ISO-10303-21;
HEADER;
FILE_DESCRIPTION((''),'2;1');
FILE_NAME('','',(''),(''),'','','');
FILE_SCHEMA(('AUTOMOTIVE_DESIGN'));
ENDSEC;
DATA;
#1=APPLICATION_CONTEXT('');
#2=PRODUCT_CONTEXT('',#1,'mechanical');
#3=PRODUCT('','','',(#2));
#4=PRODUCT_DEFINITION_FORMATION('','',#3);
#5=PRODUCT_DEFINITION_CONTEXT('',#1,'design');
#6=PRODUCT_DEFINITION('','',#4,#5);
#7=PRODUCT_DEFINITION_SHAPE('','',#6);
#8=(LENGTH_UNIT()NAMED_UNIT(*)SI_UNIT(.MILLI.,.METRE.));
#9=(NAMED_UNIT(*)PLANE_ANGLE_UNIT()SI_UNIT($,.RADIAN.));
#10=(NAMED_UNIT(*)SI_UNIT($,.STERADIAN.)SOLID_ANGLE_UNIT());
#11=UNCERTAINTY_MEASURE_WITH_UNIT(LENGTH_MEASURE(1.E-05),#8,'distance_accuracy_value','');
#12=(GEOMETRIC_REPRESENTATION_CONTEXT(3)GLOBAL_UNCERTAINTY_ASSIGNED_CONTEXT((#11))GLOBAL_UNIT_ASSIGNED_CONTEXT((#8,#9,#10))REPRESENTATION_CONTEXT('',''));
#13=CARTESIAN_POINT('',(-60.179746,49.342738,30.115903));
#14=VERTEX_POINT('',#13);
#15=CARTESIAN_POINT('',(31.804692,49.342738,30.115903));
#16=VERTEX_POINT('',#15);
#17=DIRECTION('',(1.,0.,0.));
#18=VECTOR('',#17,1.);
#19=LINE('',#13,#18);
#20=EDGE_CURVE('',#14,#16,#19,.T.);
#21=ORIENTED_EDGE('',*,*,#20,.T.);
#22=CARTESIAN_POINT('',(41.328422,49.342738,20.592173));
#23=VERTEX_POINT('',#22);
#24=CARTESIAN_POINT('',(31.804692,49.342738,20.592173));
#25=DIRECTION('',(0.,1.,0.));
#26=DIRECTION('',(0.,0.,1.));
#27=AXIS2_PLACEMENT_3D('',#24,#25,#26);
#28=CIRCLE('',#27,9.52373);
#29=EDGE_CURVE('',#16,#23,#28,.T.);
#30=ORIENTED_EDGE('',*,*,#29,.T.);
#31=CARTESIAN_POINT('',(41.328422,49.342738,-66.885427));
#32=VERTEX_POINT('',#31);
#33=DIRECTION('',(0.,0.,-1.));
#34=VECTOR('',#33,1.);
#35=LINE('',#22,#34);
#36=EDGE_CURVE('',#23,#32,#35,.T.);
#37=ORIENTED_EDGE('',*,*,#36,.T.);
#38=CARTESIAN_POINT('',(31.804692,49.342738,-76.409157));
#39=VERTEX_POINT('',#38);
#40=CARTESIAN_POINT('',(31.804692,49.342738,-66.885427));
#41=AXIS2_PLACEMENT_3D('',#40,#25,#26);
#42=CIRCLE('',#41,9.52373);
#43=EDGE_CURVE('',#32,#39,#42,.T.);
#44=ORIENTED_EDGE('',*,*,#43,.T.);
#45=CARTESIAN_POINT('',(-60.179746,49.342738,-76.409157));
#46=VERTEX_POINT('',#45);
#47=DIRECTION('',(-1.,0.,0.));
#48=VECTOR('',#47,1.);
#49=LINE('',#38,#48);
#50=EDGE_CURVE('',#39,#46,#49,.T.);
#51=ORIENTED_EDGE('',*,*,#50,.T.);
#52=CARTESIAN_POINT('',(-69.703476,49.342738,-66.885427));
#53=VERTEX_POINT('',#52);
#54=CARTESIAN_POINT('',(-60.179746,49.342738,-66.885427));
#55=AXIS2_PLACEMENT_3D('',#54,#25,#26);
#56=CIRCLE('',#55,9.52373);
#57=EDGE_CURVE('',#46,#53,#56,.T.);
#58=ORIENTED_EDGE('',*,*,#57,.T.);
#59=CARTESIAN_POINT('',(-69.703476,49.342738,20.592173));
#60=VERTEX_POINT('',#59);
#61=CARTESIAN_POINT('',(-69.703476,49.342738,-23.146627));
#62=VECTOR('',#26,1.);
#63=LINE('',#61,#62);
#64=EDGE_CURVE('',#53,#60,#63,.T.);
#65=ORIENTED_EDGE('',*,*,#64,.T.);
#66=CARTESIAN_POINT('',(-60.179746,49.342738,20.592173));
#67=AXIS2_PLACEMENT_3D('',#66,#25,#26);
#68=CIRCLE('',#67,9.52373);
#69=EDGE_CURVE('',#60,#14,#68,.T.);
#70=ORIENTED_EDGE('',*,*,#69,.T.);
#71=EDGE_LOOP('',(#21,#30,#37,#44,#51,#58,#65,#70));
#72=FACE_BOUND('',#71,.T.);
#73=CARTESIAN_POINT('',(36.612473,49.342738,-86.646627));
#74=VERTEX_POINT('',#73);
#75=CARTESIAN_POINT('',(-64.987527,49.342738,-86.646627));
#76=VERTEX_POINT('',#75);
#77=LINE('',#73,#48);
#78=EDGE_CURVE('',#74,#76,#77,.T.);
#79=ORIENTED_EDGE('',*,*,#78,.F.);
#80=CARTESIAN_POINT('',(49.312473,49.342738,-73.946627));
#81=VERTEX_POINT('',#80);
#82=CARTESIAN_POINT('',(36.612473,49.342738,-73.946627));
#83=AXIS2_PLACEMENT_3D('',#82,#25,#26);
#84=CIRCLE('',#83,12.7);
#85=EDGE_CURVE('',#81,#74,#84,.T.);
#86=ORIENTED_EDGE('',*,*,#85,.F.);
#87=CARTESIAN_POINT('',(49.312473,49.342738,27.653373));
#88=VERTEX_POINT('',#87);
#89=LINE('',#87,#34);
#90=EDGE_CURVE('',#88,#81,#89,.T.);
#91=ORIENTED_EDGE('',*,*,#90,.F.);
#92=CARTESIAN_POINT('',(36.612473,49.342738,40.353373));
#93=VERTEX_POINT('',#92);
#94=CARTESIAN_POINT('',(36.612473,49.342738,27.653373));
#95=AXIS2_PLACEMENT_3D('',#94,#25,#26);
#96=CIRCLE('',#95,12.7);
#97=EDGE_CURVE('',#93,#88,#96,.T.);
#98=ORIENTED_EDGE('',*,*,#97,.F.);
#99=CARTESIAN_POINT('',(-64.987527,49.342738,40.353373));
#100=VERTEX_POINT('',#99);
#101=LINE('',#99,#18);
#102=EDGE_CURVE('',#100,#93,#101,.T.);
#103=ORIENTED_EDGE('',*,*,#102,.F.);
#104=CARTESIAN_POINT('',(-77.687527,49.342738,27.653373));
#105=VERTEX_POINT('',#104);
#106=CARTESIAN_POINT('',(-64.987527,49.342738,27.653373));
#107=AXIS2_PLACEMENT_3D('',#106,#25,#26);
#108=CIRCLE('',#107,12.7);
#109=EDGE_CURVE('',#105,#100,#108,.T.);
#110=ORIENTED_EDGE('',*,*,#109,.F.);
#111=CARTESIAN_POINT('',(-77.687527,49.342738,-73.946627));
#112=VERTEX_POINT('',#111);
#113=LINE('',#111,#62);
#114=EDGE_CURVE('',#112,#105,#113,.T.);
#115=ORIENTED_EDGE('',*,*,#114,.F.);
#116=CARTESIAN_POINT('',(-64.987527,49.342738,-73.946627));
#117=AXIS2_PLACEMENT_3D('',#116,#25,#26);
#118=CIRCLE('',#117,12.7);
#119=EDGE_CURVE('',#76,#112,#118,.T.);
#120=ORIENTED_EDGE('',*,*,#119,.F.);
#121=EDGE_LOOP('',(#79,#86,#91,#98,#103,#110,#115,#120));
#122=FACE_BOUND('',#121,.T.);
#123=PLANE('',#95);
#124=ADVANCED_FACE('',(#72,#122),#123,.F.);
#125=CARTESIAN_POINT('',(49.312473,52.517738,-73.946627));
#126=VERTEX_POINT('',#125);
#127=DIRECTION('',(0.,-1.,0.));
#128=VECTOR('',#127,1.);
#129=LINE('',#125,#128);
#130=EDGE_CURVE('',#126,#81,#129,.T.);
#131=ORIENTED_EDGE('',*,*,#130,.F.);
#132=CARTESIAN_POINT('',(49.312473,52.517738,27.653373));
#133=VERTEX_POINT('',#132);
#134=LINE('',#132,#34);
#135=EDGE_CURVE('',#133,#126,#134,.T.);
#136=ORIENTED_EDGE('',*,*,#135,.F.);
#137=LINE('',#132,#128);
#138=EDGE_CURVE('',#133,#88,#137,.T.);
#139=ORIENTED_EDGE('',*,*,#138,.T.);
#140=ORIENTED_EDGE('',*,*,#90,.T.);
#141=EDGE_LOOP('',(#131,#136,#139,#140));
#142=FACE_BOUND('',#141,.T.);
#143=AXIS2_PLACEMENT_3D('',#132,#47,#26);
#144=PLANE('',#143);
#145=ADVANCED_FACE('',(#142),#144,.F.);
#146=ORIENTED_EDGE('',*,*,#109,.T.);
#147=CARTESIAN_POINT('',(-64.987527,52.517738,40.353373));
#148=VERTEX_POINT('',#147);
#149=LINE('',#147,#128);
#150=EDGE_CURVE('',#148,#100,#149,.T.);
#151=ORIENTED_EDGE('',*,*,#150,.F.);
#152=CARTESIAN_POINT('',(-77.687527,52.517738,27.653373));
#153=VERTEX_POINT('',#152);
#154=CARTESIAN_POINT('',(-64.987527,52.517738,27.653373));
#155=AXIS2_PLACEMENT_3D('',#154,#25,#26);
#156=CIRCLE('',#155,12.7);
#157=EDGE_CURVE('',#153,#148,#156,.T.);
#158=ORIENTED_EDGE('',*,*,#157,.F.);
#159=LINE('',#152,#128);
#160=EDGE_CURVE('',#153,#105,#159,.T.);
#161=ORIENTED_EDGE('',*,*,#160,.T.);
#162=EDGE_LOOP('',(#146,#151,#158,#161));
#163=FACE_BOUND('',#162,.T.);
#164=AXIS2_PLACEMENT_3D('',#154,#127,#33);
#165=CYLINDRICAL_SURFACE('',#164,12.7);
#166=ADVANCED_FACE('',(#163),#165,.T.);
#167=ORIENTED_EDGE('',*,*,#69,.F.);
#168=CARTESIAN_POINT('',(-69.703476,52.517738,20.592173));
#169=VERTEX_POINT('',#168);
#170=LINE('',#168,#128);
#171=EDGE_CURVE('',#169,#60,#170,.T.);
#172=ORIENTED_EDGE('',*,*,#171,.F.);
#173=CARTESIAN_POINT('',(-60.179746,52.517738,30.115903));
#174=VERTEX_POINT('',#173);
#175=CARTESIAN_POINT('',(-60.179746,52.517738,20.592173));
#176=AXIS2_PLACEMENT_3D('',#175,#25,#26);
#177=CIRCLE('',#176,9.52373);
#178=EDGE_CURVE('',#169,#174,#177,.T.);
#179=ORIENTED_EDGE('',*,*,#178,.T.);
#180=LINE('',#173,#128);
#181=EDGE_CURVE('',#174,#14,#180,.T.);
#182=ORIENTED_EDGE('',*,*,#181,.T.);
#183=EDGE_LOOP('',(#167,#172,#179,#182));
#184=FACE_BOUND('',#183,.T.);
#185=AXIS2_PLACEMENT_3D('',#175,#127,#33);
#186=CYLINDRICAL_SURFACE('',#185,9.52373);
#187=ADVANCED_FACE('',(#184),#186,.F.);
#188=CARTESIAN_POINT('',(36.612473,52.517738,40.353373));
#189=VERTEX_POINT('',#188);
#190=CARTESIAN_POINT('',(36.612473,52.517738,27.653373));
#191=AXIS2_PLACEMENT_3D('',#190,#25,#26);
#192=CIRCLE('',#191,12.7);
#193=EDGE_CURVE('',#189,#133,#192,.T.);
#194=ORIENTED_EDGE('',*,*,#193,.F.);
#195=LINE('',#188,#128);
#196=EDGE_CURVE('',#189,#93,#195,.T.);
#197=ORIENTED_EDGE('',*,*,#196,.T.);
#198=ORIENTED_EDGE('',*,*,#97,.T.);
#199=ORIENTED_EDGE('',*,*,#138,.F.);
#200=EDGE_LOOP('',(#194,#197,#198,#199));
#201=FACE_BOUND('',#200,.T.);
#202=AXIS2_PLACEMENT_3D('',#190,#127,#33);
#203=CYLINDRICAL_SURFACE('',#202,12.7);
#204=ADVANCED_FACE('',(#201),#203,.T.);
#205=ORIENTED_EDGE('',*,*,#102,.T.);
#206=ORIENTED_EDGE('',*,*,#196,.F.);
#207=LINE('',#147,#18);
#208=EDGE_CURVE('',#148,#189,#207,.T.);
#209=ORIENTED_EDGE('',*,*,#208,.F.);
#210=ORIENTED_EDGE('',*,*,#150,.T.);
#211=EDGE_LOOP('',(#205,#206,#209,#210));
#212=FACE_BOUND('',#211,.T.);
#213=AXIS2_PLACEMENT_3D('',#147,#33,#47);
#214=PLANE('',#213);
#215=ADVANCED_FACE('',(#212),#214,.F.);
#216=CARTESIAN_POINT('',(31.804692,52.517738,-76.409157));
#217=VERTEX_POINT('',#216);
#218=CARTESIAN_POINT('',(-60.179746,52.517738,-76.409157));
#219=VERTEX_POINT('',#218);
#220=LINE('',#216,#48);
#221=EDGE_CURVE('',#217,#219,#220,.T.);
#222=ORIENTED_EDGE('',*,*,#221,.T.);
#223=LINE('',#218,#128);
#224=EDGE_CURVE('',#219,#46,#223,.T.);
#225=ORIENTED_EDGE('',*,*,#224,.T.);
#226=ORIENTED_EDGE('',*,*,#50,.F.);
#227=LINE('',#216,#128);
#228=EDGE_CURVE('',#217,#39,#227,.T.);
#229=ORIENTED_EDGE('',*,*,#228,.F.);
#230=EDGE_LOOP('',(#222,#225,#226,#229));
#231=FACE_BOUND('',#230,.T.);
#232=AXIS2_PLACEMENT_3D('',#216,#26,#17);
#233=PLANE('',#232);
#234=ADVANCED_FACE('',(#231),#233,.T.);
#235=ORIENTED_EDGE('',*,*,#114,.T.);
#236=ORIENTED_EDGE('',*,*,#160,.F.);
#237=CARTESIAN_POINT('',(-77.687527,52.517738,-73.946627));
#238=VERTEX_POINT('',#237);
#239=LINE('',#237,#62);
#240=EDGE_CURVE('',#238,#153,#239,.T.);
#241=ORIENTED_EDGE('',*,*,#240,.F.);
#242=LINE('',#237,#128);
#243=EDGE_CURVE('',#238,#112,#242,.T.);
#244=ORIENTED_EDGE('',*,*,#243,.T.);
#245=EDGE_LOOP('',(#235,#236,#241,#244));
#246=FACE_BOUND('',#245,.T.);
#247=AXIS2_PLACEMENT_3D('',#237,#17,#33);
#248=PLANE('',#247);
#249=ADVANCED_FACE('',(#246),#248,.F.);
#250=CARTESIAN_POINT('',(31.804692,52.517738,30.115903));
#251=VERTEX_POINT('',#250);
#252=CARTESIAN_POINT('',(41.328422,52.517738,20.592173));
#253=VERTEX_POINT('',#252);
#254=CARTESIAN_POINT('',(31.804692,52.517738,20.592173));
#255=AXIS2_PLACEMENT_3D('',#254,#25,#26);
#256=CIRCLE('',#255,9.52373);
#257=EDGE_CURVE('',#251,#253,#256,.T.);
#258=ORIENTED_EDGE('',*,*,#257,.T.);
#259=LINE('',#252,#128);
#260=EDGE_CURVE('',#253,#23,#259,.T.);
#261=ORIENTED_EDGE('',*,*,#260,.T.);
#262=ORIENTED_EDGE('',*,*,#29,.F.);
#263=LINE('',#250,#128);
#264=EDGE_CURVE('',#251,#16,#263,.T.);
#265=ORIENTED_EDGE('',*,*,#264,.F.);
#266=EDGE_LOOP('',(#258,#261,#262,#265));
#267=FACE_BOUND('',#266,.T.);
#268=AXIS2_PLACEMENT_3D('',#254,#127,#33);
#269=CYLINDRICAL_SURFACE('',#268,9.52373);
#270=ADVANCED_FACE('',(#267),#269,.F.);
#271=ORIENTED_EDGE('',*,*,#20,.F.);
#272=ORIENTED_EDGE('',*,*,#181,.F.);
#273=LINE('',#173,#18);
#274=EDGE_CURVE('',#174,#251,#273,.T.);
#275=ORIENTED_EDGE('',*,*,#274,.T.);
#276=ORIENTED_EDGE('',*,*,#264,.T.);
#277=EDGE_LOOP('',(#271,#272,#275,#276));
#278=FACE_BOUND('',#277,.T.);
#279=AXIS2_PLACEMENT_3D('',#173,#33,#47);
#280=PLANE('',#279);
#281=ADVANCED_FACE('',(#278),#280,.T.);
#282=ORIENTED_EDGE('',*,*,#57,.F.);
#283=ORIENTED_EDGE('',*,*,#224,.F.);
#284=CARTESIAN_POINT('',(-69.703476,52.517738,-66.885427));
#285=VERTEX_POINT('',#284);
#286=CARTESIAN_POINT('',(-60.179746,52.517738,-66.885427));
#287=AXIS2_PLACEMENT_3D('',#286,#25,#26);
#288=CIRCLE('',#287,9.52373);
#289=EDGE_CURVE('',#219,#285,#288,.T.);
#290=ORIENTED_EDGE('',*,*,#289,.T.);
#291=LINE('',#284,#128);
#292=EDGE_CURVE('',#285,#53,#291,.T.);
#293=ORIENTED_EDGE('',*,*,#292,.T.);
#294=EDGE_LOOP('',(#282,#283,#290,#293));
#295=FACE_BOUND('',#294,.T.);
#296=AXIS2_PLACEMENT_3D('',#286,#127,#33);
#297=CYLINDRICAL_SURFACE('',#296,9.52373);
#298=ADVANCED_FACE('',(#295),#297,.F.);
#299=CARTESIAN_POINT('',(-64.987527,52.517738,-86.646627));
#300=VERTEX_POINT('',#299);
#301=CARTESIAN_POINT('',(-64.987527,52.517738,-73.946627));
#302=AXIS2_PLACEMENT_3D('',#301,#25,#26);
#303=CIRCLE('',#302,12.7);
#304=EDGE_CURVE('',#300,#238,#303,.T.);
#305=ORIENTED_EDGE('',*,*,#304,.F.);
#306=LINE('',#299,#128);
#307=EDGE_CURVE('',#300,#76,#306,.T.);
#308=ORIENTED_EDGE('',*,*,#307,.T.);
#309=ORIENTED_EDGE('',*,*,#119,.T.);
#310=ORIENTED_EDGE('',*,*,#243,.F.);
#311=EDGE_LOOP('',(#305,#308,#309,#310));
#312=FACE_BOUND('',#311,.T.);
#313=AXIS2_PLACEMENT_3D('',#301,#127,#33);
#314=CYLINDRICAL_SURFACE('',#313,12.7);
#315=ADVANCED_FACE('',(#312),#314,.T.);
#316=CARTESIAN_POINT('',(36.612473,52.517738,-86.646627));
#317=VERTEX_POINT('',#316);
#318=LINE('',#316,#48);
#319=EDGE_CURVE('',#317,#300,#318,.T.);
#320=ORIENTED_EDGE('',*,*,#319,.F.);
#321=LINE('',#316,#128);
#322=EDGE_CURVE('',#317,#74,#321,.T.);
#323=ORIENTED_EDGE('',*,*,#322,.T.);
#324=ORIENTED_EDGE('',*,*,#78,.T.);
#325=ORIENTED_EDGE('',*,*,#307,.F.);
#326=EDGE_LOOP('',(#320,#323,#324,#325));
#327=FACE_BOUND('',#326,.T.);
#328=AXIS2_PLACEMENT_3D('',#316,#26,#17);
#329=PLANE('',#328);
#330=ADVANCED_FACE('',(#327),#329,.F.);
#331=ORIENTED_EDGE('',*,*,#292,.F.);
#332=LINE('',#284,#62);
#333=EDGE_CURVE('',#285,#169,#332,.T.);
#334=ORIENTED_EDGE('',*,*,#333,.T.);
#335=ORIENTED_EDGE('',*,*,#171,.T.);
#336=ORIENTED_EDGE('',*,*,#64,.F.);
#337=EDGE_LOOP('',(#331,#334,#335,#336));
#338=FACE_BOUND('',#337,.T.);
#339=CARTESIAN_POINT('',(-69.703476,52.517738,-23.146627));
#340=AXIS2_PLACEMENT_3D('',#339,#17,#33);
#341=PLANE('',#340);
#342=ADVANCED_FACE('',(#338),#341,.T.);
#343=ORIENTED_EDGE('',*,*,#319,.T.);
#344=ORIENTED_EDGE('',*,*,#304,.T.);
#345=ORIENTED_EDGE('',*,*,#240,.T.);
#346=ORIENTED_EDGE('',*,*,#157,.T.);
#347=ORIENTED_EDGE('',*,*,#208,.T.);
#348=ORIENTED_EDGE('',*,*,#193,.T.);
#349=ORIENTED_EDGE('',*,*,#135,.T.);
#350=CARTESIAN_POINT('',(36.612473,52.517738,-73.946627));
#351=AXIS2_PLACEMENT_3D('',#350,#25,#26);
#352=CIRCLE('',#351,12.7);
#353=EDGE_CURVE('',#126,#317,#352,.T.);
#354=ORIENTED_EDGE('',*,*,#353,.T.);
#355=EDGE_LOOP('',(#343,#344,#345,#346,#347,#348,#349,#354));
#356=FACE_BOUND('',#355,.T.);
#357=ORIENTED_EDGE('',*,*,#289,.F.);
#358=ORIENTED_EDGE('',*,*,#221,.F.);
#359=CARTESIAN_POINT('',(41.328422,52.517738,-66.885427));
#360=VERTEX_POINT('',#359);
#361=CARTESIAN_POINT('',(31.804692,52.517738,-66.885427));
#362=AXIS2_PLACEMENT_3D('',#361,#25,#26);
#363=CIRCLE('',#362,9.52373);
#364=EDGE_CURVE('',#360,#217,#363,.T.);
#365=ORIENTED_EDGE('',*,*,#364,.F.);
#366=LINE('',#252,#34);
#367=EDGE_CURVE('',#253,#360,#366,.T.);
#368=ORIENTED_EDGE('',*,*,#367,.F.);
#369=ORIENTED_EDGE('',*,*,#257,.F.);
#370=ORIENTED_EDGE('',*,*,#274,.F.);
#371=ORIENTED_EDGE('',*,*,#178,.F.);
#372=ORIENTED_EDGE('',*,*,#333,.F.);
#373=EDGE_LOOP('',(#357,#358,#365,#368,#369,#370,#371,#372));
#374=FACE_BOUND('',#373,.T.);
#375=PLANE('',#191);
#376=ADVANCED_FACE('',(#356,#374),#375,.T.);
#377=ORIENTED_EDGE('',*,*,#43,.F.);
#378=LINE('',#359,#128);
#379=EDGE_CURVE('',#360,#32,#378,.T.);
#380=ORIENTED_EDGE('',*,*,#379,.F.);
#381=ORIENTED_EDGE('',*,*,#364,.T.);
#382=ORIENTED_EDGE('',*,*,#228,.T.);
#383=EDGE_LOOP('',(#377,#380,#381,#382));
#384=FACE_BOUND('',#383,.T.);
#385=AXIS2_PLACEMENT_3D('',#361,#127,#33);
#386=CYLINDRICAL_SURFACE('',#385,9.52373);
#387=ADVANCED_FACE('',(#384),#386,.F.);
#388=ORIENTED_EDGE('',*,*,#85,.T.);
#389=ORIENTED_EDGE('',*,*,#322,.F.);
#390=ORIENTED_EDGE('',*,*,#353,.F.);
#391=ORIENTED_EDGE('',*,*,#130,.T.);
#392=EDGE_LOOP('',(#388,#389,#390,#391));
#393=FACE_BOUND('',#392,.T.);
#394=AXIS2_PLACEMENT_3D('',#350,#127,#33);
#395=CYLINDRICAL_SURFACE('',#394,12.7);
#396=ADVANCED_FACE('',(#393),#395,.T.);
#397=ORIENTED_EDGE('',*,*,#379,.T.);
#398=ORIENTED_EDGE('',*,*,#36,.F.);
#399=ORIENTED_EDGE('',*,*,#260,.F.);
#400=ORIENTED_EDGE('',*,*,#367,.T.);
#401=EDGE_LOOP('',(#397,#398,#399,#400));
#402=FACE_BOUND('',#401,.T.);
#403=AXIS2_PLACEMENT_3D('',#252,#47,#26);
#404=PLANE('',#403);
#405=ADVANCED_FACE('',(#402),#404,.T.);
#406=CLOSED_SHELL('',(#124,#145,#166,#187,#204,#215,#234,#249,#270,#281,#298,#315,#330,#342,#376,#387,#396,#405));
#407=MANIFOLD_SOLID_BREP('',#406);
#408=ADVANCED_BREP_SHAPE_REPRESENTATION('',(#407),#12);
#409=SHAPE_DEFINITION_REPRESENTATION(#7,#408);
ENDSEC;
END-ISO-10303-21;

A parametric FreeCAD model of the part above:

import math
import FreeCAD as App
import Part
import Sketcher
Q = App.Units.Quantity

doc = App.newDocument("Part")
params = doc.addObject("Spreadsheet::Sheet", "Params")
for row, (alias, value) in enumerate([
    ("sketch1_radius", "0.5 in"),
    ("sketch1_width", "4 in"),
    ("sketch1_height", "3.444 in"),
    ("pad1_length", "0.125 in"),
], start=1):
    params.set(f"A{row}", alias)
    params.set(f"B{row}", "=" + value)
    params.setAlias(f"B{row}", alias)

body = doc.addObject("PartDesign::Body", "Body")

sketch1 = body.newObject("Sketcher::SketchObject", "Sketch")
sketch1.AttachmentSupport = (doc.getObject("XZ_Plane"), [""])
sketch1.MapMode = "FlatFace"
sketch1.AttachmentOffset = App.Placement(App.Vector(0, 0, -49.342738), App.Rotation())
sketch1.addGeometry(Part.LineSegment(App.Vector(37, -87, 0), App.Vector(-65, -87, 0)), False)
sketch1.addGeometry(Part.ArcOfCircle(Part.Circle(App.Vector(-65, -74, 0), App.Vector(0, 0, 1), 13), math.radians(180), math.radians(270)), False)
sketch1.addGeometry(Part.LineSegment(App.Vector(-78, -74, 0), App.Vector(-78, 28, 0)), False)
sketch1.addGeometry(Part.ArcOfCircle(Part.Circle(App.Vector(-65, 28, 0), App.Vector(0, 0, 1), 13), math.radians(90), math.radians(180)), False)
sketch1.addGeometry(Part.LineSegment(App.Vector(-65, 40, 0), App.Vector(37, 40, 0)), False)
sketch1.addGeometry(Part.ArcOfCircle(Part.Circle(App.Vector(37, 28, 0), App.Vector(0, 0, 1), 13), math.radians(0), math.radians(90)), False)
sketch1.addGeometry(Part.LineSegment(App.Vector(49, 28, 0), App.Vector(49, -74, 0)), False)
sketch1.addGeometry(Part.ArcOfCircle(Part.Circle(App.Vector(37, -74, 0), App.Vector(0, 0, 1), 13), math.radians(-90), math.radians(0)), False)
sketch1.addGeometry(Part.LineSegment(App.Vector(32, 30, 0), App.Vector(-60, 30, 0)), False)
sketch1.addGeometry(Part.ArcOfCircle(Part.Circle(App.Vector(-60, 21, 0), App.Vector(0, 0, 1), 10), math.radians(90), math.radians(180)), False)
sketch1.addGeometry(Part.LineSegment(App.Vector(-70, 21, 0), App.Vector(-70, -67, 0)), False)
sketch1.addGeometry(Part.ArcOfCircle(Part.Circle(App.Vector(-60, -67, 0), App.Vector(0, 0, 1), 10), math.radians(-180), math.radians(-90)), False)
sketch1.addGeometry(Part.LineSegment(App.Vector(-60, -76, 0), App.Vector(32, -76, 0)), False)
sketch1.addGeometry(Part.ArcOfCircle(Part.Circle(App.Vector(32, -67, 0), App.Vector(0, 0, 1), 10), math.radians(-90), math.radians(0)), False)
sketch1.addGeometry(Part.LineSegment(App.Vector(41, -67, 0), App.Vector(41, 21, 0)), False)
sketch1.addGeometry(Part.ArcOfCircle(Part.Circle(App.Vector(32, 21, 0), App.Vector(0, 0, 1), 10), math.radians(0), math.radians(90)), False)
sketch1.addConstraint(Sketcher.Constraint("Tangent", 0, 2, 1, 2))
sketch1.addConstraint(Sketcher.Constraint("Tangent", 1, 1, 2, 1))
sketch1.addConstraint(Sketcher.Constraint("Tangent", 2, 2, 3, 2))
sketch1.addConstraint(Sketcher.Constraint("Tangent", 3, 1, 4, 1))
sketch1.addConstraint(Sketcher.Constraint("Tangent", 4, 2, 5, 2))
sketch1.addConstraint(Sketcher.Constraint("Tangent", 5, 1, 6, 1))
sketch1.addConstraint(Sketcher.Constraint("Tangent", 6, 2, 7, 2))
sketch1.addConstraint(Sketcher.Constraint("Tangent", 7, 1, 0, 1))
sketch1.addConstraint(Sketcher.Constraint("Tangent", 8, 2, 9, 1))
sketch1.addConstraint(Sketcher.Constraint("Tangent", 9, 2, 10, 1))
sketch1.addConstraint(Sketcher.Constraint("Tangent", 10, 2, 11, 1))
sketch1.addConstraint(Sketcher.Constraint("Tangent", 11, 2, 12, 1))
sketch1.addConstraint(Sketcher.Constraint("Tangent", 12, 2, 13, 1))
sketch1.addConstraint(Sketcher.Constraint("Tangent", 13, 2, 14, 1))
sketch1.addConstraint(Sketcher.Constraint("Tangent", 14, 2, 15, 1))
sketch1.addConstraint(Sketcher.Constraint("Tangent", 15, 2, 8, 1))
sketch1.addConstraint(Sketcher.Constraint("Horizontal", 0))
sketch1.addConstraint(Sketcher.Constraint("Vertical", 2))
sketch1.addConstraint(Sketcher.Constraint("Horizontal", 4))
sketch1.addConstraint(Sketcher.Constraint("Vertical", 6))
sketch1.addConstraint(Sketcher.Constraint("Horizontal", 8))
sketch1.addConstraint(Sketcher.Constraint("Vertical", 10))
sketch1.addConstraint(Sketcher.Constraint("Horizontal", 12))
sketch1.addConstraint(Sketcher.Constraint("Vertical", 14))
sketch1.addConstraint(Sketcher.Constraint("Equal", 1, 3))
sketch1.addConstraint(Sketcher.Constraint("Equal", 3, 5))
sketch1.addConstraint(Sketcher.Constraint("Equal", 5, 7))
sketch1.addConstraint(Sketcher.Constraint("Equal", 9, 11))
sketch1.addConstraint(Sketcher.Constraint("Equal", 11, 13))
sketch1.addConstraint(Sketcher.Constraint("Equal", 13, 15))
sketch1.addConstraint(Sketcher.Constraint("Equal", 4, 2))
sketch1.addConstraint(Sketcher.Constraint("Radius", 1, Q("0.5 in")))
sketch1.addConstraint(Sketcher.Constraint("DistanceX", 0, 2, 0, 1, Q("4 in")))
sketch1.addConstraint(Sketcher.Constraint("DistanceY", 10, 2, 10, 1, Q("3.444 in")))
sketch1.addConstraint(Sketcher.Constraint("Radius", 9, Q("9.52373 mm")))
sketch1.addConstraint(Sketcher.Constraint("DistanceY", 9, 3, 3, 3, Q("0.278 in")))
sketch1.addConstraint(Sketcher.Constraint("DistanceX", 8, 2, 8, 1, Q("91.984438 mm")))
sketch1.addConstraint(Sketcher.Constraint("DistanceX", 3, 3, 9, 3, Q("4.807781 mm")))
sketch1.addConstraint(Sketcher.Constraint("DistanceX", 1, 3, -1, 1, Q("64.987527 mm")))
sketch1.addConstraint(Sketcher.Constraint("DistanceY", 1, 3, -1, 1, Q("73.946627 mm")))
sketch1.setExpression("Constraints[31]", "Params.sketch1_radius")
sketch1.setExpression("Constraints[32]", "Params.sketch1_width")
sketch1.setExpression("Constraints[33]", "Params.sketch1_height")
pad1 = body.newObject("PartDesign::Pad", "Pad")
pad1.Profile = sketch1
pad1.setExpression("Length", "Params.pad1_length")
pad1.Reversed = True

doc.recompute()
